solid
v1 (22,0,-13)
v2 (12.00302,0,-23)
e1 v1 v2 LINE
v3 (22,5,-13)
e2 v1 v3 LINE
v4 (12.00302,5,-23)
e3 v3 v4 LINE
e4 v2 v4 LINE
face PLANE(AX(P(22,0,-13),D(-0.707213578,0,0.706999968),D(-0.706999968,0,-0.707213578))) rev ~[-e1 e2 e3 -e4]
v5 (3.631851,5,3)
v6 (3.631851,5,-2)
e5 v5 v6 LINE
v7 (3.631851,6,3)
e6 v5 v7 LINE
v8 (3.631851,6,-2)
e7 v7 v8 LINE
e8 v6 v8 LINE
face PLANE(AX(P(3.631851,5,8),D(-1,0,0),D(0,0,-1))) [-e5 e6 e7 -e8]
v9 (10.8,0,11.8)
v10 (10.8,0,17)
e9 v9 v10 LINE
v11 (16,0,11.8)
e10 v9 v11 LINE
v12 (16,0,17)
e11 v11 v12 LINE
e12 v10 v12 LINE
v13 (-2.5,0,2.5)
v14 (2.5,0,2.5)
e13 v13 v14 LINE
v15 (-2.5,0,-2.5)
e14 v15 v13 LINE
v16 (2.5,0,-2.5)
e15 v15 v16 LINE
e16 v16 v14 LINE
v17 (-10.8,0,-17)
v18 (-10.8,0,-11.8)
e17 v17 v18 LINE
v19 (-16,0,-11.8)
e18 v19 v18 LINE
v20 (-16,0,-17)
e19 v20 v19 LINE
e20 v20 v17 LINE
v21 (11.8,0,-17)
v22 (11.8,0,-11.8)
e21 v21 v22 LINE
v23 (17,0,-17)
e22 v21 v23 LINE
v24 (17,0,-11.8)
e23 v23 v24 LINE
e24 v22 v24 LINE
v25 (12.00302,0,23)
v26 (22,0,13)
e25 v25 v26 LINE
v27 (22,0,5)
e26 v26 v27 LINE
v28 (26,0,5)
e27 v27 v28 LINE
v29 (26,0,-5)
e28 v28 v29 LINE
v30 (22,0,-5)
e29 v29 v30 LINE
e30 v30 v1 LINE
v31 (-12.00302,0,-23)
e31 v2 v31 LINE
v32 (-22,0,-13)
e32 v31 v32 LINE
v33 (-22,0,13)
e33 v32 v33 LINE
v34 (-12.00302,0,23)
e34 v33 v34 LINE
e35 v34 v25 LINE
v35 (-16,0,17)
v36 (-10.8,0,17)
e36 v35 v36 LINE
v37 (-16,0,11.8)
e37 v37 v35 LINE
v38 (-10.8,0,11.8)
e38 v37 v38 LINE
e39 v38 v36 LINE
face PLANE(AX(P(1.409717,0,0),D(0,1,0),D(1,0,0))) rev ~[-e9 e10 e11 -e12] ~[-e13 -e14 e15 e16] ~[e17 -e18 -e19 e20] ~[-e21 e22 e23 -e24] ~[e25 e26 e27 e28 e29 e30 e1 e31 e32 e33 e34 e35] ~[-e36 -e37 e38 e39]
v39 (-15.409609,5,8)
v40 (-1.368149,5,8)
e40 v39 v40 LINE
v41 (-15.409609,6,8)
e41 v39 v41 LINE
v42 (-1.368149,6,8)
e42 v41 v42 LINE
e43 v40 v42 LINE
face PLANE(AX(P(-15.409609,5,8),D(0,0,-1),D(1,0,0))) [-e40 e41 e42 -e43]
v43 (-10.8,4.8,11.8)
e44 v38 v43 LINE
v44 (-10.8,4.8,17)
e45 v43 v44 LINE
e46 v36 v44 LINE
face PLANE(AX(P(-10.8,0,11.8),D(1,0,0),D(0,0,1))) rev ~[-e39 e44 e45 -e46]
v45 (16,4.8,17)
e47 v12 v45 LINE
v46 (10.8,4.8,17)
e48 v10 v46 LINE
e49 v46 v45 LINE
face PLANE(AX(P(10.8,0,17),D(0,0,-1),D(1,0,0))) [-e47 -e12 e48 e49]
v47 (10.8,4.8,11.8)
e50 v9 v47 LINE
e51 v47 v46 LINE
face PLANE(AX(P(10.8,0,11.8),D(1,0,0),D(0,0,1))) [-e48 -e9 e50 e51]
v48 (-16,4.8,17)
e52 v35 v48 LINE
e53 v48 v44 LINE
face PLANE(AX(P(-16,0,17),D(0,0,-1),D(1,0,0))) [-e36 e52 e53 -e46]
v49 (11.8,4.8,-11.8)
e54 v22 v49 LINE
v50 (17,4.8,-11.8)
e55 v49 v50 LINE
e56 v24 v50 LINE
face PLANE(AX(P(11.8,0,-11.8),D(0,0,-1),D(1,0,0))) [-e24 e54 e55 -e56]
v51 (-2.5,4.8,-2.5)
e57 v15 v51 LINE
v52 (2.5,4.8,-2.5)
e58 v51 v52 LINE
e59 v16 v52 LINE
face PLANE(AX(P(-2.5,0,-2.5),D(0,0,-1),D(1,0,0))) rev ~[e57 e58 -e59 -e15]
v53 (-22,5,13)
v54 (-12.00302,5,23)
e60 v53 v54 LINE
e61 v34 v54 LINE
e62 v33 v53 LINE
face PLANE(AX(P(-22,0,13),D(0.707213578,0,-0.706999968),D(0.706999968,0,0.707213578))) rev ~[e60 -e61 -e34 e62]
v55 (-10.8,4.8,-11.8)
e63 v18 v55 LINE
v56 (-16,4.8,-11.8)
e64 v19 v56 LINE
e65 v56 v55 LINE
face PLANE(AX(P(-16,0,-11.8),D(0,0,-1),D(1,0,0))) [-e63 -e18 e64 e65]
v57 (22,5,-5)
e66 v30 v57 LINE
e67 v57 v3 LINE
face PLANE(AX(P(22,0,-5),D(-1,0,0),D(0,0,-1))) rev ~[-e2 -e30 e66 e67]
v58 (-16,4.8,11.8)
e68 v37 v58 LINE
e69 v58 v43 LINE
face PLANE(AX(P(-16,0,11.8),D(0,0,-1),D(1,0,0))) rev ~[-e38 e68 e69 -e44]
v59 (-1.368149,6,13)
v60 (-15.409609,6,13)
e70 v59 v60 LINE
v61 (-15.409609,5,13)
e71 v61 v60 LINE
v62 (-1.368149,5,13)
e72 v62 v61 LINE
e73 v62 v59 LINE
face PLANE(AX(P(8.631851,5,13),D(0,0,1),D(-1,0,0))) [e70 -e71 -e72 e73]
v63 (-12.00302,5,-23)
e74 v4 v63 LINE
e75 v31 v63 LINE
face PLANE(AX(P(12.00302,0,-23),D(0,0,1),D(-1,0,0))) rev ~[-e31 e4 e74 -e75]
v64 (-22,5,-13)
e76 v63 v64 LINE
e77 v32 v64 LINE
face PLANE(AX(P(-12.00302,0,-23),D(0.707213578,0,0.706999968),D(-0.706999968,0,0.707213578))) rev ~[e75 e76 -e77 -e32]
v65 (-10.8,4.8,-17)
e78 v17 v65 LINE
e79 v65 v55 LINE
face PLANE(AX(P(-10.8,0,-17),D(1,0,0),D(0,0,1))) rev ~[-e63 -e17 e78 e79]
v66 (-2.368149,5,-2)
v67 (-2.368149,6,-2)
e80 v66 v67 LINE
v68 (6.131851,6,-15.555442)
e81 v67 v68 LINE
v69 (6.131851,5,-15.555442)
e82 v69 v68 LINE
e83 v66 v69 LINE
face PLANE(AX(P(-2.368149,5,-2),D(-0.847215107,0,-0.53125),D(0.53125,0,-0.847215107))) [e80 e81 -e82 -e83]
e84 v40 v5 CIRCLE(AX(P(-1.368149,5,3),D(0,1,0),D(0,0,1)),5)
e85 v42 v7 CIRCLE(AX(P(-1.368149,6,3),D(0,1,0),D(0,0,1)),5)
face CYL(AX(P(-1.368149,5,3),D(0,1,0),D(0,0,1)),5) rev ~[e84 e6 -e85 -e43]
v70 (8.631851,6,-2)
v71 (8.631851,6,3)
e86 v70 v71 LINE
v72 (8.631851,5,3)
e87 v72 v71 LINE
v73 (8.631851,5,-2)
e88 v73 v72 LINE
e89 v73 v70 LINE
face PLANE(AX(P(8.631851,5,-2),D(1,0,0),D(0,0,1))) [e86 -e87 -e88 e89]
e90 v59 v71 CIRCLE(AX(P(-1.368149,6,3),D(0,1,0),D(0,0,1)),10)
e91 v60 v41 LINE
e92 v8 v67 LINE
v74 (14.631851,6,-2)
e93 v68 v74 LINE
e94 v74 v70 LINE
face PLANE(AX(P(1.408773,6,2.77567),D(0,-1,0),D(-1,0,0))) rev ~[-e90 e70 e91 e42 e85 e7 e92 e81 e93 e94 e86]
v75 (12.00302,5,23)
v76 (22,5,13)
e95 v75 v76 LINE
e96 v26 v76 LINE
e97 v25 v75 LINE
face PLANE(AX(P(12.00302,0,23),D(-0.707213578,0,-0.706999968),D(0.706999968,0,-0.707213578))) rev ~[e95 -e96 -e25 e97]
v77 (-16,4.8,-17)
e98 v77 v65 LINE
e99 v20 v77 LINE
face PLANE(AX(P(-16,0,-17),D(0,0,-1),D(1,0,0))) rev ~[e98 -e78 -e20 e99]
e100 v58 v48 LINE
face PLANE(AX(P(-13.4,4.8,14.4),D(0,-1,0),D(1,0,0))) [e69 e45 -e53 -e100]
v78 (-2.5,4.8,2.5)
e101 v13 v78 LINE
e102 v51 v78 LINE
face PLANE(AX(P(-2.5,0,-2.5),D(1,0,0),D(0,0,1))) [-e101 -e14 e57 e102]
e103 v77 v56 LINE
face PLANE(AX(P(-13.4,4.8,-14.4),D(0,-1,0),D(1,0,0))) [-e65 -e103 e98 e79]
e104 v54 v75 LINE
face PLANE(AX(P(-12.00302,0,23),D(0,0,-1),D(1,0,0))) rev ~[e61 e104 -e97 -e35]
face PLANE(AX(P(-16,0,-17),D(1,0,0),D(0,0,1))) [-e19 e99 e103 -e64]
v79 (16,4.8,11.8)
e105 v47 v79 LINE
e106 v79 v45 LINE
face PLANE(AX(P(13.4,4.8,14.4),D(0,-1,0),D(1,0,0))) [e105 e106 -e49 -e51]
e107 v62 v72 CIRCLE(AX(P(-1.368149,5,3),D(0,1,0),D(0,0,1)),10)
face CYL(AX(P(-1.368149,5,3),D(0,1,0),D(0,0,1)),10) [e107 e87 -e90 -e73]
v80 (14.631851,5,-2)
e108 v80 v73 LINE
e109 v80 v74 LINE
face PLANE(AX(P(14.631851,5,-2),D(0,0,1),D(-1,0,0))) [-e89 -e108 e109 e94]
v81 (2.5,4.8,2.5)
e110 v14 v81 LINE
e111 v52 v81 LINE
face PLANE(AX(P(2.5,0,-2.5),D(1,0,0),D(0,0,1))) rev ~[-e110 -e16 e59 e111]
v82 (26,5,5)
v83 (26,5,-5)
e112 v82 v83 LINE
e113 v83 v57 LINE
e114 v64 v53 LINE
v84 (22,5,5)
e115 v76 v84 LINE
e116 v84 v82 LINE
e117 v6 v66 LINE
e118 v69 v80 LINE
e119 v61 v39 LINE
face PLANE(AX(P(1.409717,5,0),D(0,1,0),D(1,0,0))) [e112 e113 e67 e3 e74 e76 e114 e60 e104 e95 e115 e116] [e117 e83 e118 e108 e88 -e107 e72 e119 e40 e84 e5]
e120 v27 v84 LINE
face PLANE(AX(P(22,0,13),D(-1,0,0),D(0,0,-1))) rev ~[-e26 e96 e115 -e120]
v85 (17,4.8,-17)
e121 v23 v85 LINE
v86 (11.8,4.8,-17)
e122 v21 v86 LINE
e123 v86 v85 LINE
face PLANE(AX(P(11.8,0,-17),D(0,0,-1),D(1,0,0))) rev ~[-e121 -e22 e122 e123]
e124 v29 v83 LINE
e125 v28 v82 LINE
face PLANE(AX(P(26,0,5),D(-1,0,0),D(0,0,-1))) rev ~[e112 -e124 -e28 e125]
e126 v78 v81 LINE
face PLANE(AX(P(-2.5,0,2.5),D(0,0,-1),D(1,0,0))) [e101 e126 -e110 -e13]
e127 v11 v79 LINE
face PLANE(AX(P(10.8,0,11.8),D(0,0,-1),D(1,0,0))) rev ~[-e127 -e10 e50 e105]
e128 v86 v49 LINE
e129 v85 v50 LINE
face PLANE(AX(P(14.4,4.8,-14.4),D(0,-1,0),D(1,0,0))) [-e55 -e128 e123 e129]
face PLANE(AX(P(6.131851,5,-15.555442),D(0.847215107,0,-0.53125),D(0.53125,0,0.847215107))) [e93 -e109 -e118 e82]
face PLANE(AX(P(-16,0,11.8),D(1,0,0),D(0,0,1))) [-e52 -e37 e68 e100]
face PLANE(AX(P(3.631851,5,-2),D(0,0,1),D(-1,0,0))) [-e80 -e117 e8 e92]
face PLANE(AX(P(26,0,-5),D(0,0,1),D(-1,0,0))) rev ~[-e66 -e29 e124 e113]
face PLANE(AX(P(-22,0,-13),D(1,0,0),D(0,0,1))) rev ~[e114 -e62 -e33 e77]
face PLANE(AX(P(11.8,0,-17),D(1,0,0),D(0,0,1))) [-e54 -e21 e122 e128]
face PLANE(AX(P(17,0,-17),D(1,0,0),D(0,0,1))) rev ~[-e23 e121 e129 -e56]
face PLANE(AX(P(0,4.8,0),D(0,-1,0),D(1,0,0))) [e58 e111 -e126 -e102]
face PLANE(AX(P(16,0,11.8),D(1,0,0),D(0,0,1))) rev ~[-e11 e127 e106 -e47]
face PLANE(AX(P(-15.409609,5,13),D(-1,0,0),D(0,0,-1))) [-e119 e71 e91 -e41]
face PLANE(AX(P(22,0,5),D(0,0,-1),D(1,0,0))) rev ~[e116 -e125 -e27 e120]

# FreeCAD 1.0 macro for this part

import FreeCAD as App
import Part
import Sketcher
Q = App.Units.Quantity


def edges_at(feature, points):
    """Names of the edges that pass closest to the given points."""
    edges = feature.Shape.Edges
    near = lambda p: min(range(len(edges)), key=lambda i: edges[i].distToShape(Part.Vertex(*p))[0])
    return sorted({f"Edge{near(p) + 1}" for p in points})


def add_polygon(sketch, points):
    """Adds a closed chain of lines whose ends are joined by coincident constraints."""
    first, n = sketch.GeometryCount, len(points)
    for a, b in zip(points, points[1:] + points[:1]):
        sketch.addGeometry(Part.LineSegment(App.Vector(*a, 0), App.Vector(*b, 0)), False)
    for i in range(n):
        sketch.addConstraint(Sketcher.Constraint("Coincident", first + i, 2, first + (i + 1) % n, 1))

doc = App.newDocument("Part")
body = doc.addObject("PartDesign::Body", "Body")

# Sketch on XZ plane
sketch1 = body.newObject("Sketcher::SketchObject", "Sketch")
sketch1.AttachmentSupport = (doc.getObject("XZ_Plane"), [""])
sketch1.MapMode = "FlatFace"
add_polygon(sketch1, [(22, -13), (12.00302, -23), (-12.00302, -23), (-22, -13), (-22, 13), (-12.00302, 23), (12.00302, 23), (22, 13), (22, 5), (26, 5), (26, -5), (22, -5)])  # lines 0-11
sketch1.addConstraint(Sketcher.Constraint("Horizontal", 1))
sketch1.addConstraint(Sketcher.Constraint("Vertical", 3))
sketch1.addConstraint(Sketcher.Constraint("Horizontal", 5))
sketch1.addConstraint(Sketcher.Constraint("Vertical", 7))
sketch1.addConstraint(Sketcher.Constraint("Horizontal", 8))
sketch1.addConstraint(Sketcher.Constraint("Vertical", 9))
sketch1.addConstraint(Sketcher.Constraint("Horizontal", 10))
sketch1.addConstraint(Sketcher.Constraint("Vertical", 11))
sketch1.addConstraint(Sketcher.Constraint("Symmetric", 0, 2, 4, 2, -1, 1))
sketch1.addConstraint(Sketcher.Constraint("Symmetric", 2, 2, 6, 2, -1, 1))
sketch1.addConstraint(Sketcher.Constraint("Symmetric", 3, 2, 11, 2, -1, 1))
sketch1.addConstraint(Sketcher.Constraint("Parallel", 2, 6))
sketch1.addConstraint(Sketcher.Constraint("Horizontal", 3, 2, 6, 2))
sketch1.addConstraint(Sketcher.Constraint("Vertical", 1, 2, 4, 2))
sketch1.addConstraint(Sketcher.Constraint("Equal", 7, 11))
sketch1.addConstraint(Sketcher.Constraint("DistanceX", 8, 1, 8, 2, Q("4 mm")))
sketch1.addConstraint(Sketcher.Constraint("DistanceY", 3, 1, 3, 2, Q("26 mm")))
sketch1.addConstraint(Sketcher.Constraint("DistanceY", 7, 2, 7, 1, Q("8 mm")))
sketch1.addConstraint(Sketcher.Constraint("DistanceY", 0, 2, -1, 1, Q("23 mm")))
sketch1.addConstraint(Sketcher.Constraint("DistanceX", 2, 2, -1, 1, Q("22 mm")))
sketch1.addConstraint(Sketcher.Constraint("Distance", 0, Q("14.14 mm")))
pad1 = body.newObject("PartDesign::Pad", "Pad")
pad1.Profile = sketch1
pad1.Length = 5
pad1.Reversed = True

# Sketch on XZ plane
sketch2 = body.newObject("Sketcher::SketchObject", "Sketch001")
sketch2.AttachmentSupport = (doc.getObject("XZ_Plane"), [""])
sketch2.MapMode = "FlatFace"
sketch2.AttachmentOffset = App.Placement(App.Vector(0, 0, -5), App.Rotation())
add_polygon(sketch2, [(3.631851, 8), (-15.409609, 8), (-15.409609, 13), (8.631851, 13), (8.631851, -2), (14.631851, -2), (6.131851, -15.555442), (-2.368149, -2), (3.631851, -2)])  # lines 0-8
sketch2.addConstraint(Sketcher.Constraint("Horizontal", 0))
sketch2.addConstraint(Sketcher.Constraint("Vertical", 1))
sketch2.addConstraint(Sketcher.Constraint("Horizontal", 2))
sketch2.addConstraint(Sketcher.Constraint("Vertical", 3))
sketch2.addConstraint(Sketcher.Constraint("Horizontal", 4))
sketch2.addConstraint(Sketcher.Constraint("Horizontal", 7))
sketch2.addConstraint(Sketcher.Constraint("Vertical", 8))
sketch2.addConstraint(Sketcher.Constraint("Horizontal", 4, 2, 6, 2))
sketch2.addConstraint(Sketcher.Constraint("Equal", 4, 7))
sketch2.addConstraint(Sketcher.Constraint("Equal", 5, 6))
sketch2.addConstraint(Sketcher.Constraint("DistanceX", 4, 1, 4, 2, Q("6 mm")))
sketch2.addConstraint(Sketcher.Constraint("DistanceY", 1, 1, 1, 2, Q("5 mm")))
sketch2.addConstraint(Sketcher.Constraint("DistanceY", 3, 2, 3, 1, Q("15 mm")))
sketch2.addConstraint(Sketcher.Constraint("Distance", 5, Q("16 mm")))
sketch2.addConstraint(Sketcher.Constraint("DistanceY", -1, 1, 0, 2, Q("8 mm")))
sketch2.addConstraint(Sketcher.Constraint("DistanceX", 6, 2, 3, 2, Q("11 mm")))
sketch2.addConstraint(Sketcher.Constraint("DistanceX", 0, 2, 0, 1, Q("19.041459 mm")))
sketch2.addConstraint(Sketcher.Constraint("DistanceX", 0, 2, -1, 1, Q("15.409609 mm")))
pad2 = body.newObject("PartDesign::Pad", "Pad001")
pad2.Profile = sketch2
pad2.Length = 1
pad2.Reversed = True

# Sketch on XZ plane
sketch3 = body.newObject("Sketcher::SketchObject", "Sketch002")
sketch3.AttachmentSupport = (doc.getObject("XZ_Plane"), [""])
sketch3.MapMode = "FlatFace"
add_polygon(sketch3, [(-16, 17), (-16, 11.8), (-10.8, 11.8), (-10.8, 17)])  # lines 0-3
add_polygon(sketch3, [(-16, -11.8), (-16, -17), (-10.8, -17), (-10.8, -11.8)])  # lines 4-7
add_polygon(sketch3, [(11.8, -11.8), (11.8, -17), (17, -17), (17, -11.8)])  # lines 8-11
add_polygon(sketch3, [(10.8, 17), (10.8, 11.8), (16, 11.8), (16, 17)])  # lines 12-15
add_polygon(sketch3, [(-2.5, 2.5), (-2.5, -2.5), (2.5, -2.5), (2.5, 2.5)])  # lines 16-19
sketch3.addConstraint(Sketcher.Constraint("Vertical", 0))
sketch3.addConstraint(Sketcher.Constraint("Horizontal", 1))
sketch3.addConstraint(Sketcher.Constraint("Vertical", 2))
sketch3.addConstraint(Sketcher.Constraint("Horizontal", 3))
sketch3.addConstraint(Sketcher.Constraint("Vertical", 4))
sketch3.addConstraint(Sketcher.Constraint("Horizontal", 5))
sketch3.addConstraint(Sketcher.Constraint("Vertical", 6))
sketch3.addConstraint(Sketcher.Constraint("Horizontal", 7))
sketch3.addConstraint(Sketcher.Constraint("Vertical", 8))
sketch3.addConstraint(Sketcher.Constraint("Horizontal", 9))
sketch3.addConstraint(Sketcher.Constraint("Vertical", 10))
sketch3.addConstraint(Sketcher.Constraint("Horizontal", 11))
sketch3.addConstraint(Sketcher.Constraint("Vertical", 12))
sketch3.addConstraint(Sketcher.Constraint("Horizontal", 13))
sketch3.addConstraint(Sketcher.Constraint("Vertical", 14))
sketch3.addConstraint(Sketcher.Constraint("Horizontal", 15))
sketch3.addConstraint(Sketcher.Constraint("Vertical", 16))
sketch3.addConstraint(Sketcher.Constraint("Horizontal", 17))
sketch3.addConstraint(Sketcher.Constraint("Vertical", 18))
sketch3.addConstraint(Sketcher.Constraint("Horizontal", 19))
sketch3.addConstraint(Sketcher.Constraint("Symmetric", 6, 2, 12, 2, -1, 1))
sketch3.addConstraint(Sketcher.Constraint("Symmetric", 4, 2, 14, 2, -1, 1))
sketch3.addConstraint(Sketcher.Constraint("Symmetric", 16, 2, 18, 2, -1, 1))
sketch3.addConstraint(Sketcher.Constraint("Symmetric", 1, 2, 12, 2, -2))
sketch3.addConstraint(Sketcher.Constraint("Symmetric", 3, 2, 14, 2, -2))
sketch3.addConstraint(Sketcher.Constraint("Horizontal", 5, 2, 8, 2))
sketch3.addConstraint(Sketcher.Constraint("Horizontal", 7, 2, 10, 2))
sketch3.addConstraint(Sketcher.Constraint("Equal", 7, 9))
sketch3.addConstraint(Sketcher.Constraint("Equal", 15, 0))
sketch3.addConstraint(Sketcher.Constraint("Equal", 19, 16))
sketch3.addConstraint(Sketcher.Constraint("DistanceX", 17, 1, 17, 2, Q("5 mm")))
sketch3.addConstraint(Sketcher.Constraint("DistanceX", 1, 1, 1, 2, Q("5.2 mm")))
sketch3.addConstraint(Sketcher.Constraint("DistanceX", 0, 2, -1, 1, Q("16 mm")))
sketch3.addConstraint(Sketcher.Constraint("DistanceY", -1, 1, 2, 2, Q("17 mm")))
sketch3.addConstraint(Sketcher.Constraint("DistanceX", -1, 1, 9, 2, Q("17 mm")))
pocket1 = body.newObject("PartDesign::Pocket", "Pocket")
pocket1.Profile = sketch3
pocket1.Length = 4.8
doc.recompute()

fillet = body.newObject("PartDesign::Fillet", "Fillet")
fillet.Base = (pocket1, edges_at(pocket1, [(8.632, 5.5, 13)]))
fillet.Radius = 10
doc.recompute()

fillet2 = body.newObject("PartDesign::Fillet", "Fillet001")
fillet2.Base = (fillet, edges_at(fillet, [(3.632, 5.5, 8)]))
fillet2.Radius = 5

doc.recompute()
